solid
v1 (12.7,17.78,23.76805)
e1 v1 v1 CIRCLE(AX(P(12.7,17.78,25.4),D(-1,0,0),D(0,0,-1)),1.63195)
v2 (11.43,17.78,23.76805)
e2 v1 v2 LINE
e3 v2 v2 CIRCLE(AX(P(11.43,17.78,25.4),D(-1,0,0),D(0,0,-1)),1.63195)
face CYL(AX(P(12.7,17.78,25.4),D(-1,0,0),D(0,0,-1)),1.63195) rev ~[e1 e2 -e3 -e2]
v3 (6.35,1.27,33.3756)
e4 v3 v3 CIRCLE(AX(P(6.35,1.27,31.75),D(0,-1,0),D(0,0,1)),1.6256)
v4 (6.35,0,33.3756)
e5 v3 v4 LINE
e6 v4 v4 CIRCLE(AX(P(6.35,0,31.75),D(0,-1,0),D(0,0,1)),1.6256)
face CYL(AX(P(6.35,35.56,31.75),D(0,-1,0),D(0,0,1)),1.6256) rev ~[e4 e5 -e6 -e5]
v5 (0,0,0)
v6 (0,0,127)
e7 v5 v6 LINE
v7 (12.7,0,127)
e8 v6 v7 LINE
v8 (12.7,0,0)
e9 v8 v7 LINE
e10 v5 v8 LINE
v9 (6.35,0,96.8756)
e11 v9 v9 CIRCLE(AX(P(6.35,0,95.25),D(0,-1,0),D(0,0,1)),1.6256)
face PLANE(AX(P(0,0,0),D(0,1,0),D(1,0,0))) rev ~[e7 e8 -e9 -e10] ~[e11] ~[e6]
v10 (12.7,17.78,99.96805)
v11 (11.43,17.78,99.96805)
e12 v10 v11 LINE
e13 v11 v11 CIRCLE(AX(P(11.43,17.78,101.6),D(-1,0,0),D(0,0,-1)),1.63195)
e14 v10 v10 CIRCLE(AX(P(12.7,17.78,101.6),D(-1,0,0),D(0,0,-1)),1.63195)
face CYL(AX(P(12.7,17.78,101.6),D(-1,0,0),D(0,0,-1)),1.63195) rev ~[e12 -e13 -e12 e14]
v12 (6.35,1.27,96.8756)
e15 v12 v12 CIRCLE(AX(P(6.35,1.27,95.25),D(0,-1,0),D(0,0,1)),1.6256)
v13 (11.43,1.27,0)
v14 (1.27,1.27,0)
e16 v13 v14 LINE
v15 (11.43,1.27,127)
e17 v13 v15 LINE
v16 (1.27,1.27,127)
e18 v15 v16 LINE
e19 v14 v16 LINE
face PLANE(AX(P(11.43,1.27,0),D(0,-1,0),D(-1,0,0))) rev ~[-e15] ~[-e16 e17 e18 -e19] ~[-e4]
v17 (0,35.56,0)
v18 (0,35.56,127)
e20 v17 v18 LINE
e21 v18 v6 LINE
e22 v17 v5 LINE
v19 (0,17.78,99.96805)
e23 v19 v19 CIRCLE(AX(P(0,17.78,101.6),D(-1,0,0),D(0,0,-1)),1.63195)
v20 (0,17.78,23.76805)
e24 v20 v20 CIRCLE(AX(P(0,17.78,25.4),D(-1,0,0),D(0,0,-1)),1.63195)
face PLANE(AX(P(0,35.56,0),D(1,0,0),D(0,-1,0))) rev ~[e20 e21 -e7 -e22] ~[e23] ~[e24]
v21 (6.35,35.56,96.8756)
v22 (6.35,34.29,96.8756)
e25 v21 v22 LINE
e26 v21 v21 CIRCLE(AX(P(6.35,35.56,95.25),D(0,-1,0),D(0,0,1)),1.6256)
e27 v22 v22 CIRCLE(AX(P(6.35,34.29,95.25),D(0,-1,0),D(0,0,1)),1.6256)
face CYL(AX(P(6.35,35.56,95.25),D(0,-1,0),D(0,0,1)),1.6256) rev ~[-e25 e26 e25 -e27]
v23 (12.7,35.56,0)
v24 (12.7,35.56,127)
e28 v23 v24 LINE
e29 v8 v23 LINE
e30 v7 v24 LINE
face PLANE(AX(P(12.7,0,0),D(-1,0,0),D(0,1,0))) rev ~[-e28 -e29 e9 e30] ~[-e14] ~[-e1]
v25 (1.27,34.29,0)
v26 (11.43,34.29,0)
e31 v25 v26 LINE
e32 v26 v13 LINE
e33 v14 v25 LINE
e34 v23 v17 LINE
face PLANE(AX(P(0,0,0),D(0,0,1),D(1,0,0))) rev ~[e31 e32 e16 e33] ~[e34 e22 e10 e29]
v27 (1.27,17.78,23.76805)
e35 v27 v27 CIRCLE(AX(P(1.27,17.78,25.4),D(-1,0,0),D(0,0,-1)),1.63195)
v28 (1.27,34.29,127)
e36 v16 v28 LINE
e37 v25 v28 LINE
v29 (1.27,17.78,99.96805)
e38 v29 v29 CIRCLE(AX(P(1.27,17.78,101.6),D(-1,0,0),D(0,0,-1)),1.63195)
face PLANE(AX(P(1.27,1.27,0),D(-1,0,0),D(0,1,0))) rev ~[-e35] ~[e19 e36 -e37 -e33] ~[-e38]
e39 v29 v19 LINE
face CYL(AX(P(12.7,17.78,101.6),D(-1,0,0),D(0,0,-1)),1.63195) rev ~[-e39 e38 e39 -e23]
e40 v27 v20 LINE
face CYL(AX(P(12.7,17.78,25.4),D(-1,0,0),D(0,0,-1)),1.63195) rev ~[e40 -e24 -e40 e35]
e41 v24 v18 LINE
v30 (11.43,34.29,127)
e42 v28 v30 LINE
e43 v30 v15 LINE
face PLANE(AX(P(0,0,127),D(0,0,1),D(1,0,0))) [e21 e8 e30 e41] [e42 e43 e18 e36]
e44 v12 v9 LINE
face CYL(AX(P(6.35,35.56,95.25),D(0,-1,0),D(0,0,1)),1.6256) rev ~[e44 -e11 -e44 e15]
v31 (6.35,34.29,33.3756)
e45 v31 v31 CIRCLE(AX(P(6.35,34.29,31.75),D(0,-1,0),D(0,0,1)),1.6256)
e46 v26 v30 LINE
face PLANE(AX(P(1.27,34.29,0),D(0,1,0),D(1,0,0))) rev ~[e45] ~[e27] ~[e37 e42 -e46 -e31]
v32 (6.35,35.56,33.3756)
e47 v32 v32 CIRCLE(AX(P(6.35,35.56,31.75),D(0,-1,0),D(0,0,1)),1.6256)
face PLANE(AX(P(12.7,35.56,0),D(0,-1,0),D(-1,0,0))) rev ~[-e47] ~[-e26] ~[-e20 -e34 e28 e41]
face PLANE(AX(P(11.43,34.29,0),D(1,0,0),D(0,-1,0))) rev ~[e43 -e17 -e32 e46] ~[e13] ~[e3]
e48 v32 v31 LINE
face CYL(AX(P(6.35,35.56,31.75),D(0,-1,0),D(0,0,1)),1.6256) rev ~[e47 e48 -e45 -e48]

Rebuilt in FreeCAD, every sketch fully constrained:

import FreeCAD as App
import Part
import Sketcher
from FreeCAD import Vector
Q = App.Units.Quantity

doc = App.newDocument("Part")
body = doc.addObject("PartDesign::Body", "Body")

# Sketch on XY plane
sketch1 = body.newObject("Sketcher::SketchObject", "Sketch")
sketch1.AttachmentSupport = (doc.getObject("XY_Plane"), [""])
sketch1.MapMode = "FlatFace"
sketch1.addGeometry([
    Part.LineSegment(Vector(0, 36, 0), Vector(0, 0, 0)),  # 0
    Part.LineSegment(Vector(0, 0, 0), Vector(13, 0, 0)),  # 1
    Part.LineSegment(Vector(13, 0, 0), Vector(13, 36, 0)),  # 2
    Part.LineSegment(Vector(13, 36, 0), Vector(0, 36, 0)),  # 3
    Part.LineSegment(Vector(1, 1, 0), Vector(1, 34, 0)),  # 4
    Part.LineSegment(Vector(1, 34, 0), Vector(11, 34, 0)),  # 5
    Part.LineSegment(Vector(11, 34, 0), Vector(11, 1, 0)),  # 6
    Part.LineSegment(Vector(11, 1, 0), Vector(1, 1, 0)),  # 7
], False)
sketch1.addConstraint([
    Sketcher.Constraint("Coincident", 0, 2, 1, 1),
    Sketcher.Constraint("Coincident", 1, 2, 2, 1),
    Sketcher.Constraint("Coincident", 2, 2, 3, 1),
    Sketcher.Constraint("Coincident", 3, 2, 0, 1),
    Sketcher.Constraint("Coincident", 4, 2, 5, 1),
    Sketcher.Constraint("Coincident", 5, 2, 6, 1),
    Sketcher.Constraint("Coincident", 6, 2, 7, 1),
    Sketcher.Constraint("Coincident", 7, 2, 4, 1),
    Sketcher.Constraint("Vertical", 0),
    Sketcher.Constraint("Horizontal", 1),
    Sketcher.Constraint("Vertical", 2),
    Sketcher.Constraint("Horizontal", 3),
    Sketcher.Constraint("Vertical", 4),
    Sketcher.Constraint("Horizontal", 5),
    Sketcher.Constraint("Vertical", 6),
    Sketcher.Constraint("Horizontal", 7),
    Sketcher.Constraint("Coincident", 0, 2, -1, 1),
    Sketcher.Constraint("DistanceX", 1, 1, 1, 2, Q("0.5 in")),
    Sketcher.Constraint("DistanceY", 0, 2, 0, 1, Q("1.4 in")),
    Sketcher.Constraint("DistanceX", -1, 1, 4, 2, Q("0.05 in")),
    Sketcher.Constraint("DistanceY", -1, 1, 6, 2, Q("0.05 in")),
    Sketcher.Constraint("DistanceY", 4, 2, 3, 2, Q("0.05 in")),
    Sketcher.Constraint("DistanceX", 5, 2, 2, 2, Q("0.05 in")),
])
pad1 = body.newObject("PartDesign::Pad", "Pad")
pad1.Profile = sketch1
pad1.Length = Q("5 in")

# Sketch on YZ plane
sketch2 = body.newObject("Sketcher::SketchObject", "Sketch001")
sketch2.AttachmentSupport = (doc.getObject("YZ_Plane"), [""])
sketch2.MapMode = "FlatFace"
sketch2.AttachmentOffset = App.Placement(Vector(0, 0, 0.5 * 25.4), App.Rotation())
sketch2.addGeometry([
    Part.Circle(Vector(17.8, 101.6, 0), Vector(0, 0, 1), 1.6),
    Part.Circle(Vector(17.8, 25.4, 0), Vector(0, 0, 1), 1.6),
], False)
sketch2.addConstraint([
    Sketcher.Constraint("Equal", 0, 1),
    Sketcher.Constraint("Vertical", 0, 3, 1, 3),
    Sketcher.Constraint("DistanceY", -1, 1, 0, 3, Q("4 in")),
    Sketcher.Constraint("DistanceY", -1, 1, 1, 3, Q("1 in")),
    Sketcher.Constraint("Diameter", 0, Q("0.1285 in")),
    Sketcher.Constraint("DistanceX", -1, 1, 0, 3, Q("0.7 in")),
])
doc.recompute()
hole = body.newObject("PartDesign::Hole", "Hole")
hole.Profile = sketch2
hole.ThreadType = "None"
hole.Diameter = Q("0.1285 in")
hole.DepthType = "ThroughAll"

# Sketch on XZ plane
sketch3 = body.newObject("Sketcher::SketchObject", "Sketch002")
sketch3.AttachmentSupport = (doc.getObject("XZ_Plane"), [""])
sketch3.MapMode = "FlatFace"
sketch3.AttachmentOffset = App.Placement(Vector(0, 0, -1.4 * 25.4), App.Rotation())
sketch3.addGeometry([
    Part.Circle(Vector(6.3, 31.8, 0), Vector(0, 0, 1), 1.6),
    Part.Circle(Vector(6.3, 95.2, 0), Vector(0, 0, 1), 1.6),
], False)
sketch3.addConstraint([
    Sketcher.Constraint("Equal", 0, 1),
    Sketcher.Constraint("Vertical", 0, 3, 1, 3),
    Sketcher.Constraint("Diameter", 0, Q("0.128 in")),
    Sketcher.Constraint("DistanceY", 0, 3, 1, 3, Q("2.5 in")),
    Sketcher.Constraint("DistanceX", -1, 1, 0, 3, Q("0.25 in")),
    Sketcher.Constraint("DistanceY", -1, 1, 0, 3, Q("1.25 in")),
])
doc.recompute()
hole2 = body.newObject("PartDesign::Hole", "Hole001")
hole2.Profile = sketch3
hole2.ThreadType = "None"
hole2.Diameter = Q("0.128 in")
hole2.DepthType = "ThroughAll"
hole2.Reversed = True

doc.recompute()
